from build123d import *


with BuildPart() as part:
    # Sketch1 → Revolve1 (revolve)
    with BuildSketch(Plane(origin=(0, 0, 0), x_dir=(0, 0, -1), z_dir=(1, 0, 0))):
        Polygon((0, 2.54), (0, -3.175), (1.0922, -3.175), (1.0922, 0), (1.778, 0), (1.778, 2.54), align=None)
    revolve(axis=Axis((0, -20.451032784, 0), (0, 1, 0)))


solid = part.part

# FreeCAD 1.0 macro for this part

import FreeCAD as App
import Part
import Sketcher

V = App.Vector
Q = App.Units.Quantity


def add_polygon(sketch, points):
    """Adds a closed chain of lines whose ends are joined by coincident constraints."""
    first, n = sketch.GeometryCount, len(points)
    for a, b in zip(points, points[1:] + points[:1]):
        sketch.addGeometry(Part.LineSegment(App.Vector(*a, 0), App.Vector(*b, 0)), False)
    for i in range(n):
        sketch.addConstraint(Sketcher.Constraint("Coincident", first + i, 2, first + (i + 1) % n, 1))

doc = App.newDocument("Part")
body = doc.addObject("PartDesign::Body", "Body")

sketch1 = body.newObject("Sketcher::SketchObject", "Sketch")
sketch1.AttachmentSupport = (doc.getObject("YZ_Plane"), [""])
sketch1.MapMode = "FlatFace"
add_polygon(sketch1, [(2.5, 0), (-3.2, 0), (-3.2, -1.1), (0, -1.1), (0, -1.8), (2.5, -1.8)])
sketch1.addConstraint([
    Sketcher.Constraint("Horizontal", 0),
    Sketcher.Constraint("Vertical", 1),
    Sketcher.Constraint("Horizontal", 2),
    Sketcher.Constraint("Vertical", 3),
    Sketcher.Constraint("Horizontal", 4),
    Sketcher.Constraint("Vertical", 5),
    Sketcher.Constraint("PointOnObject", 0, 2, -1),
    Sketcher.Constraint("PointOnObject", 2, 2, -2),
    Sketcher.Constraint("DistanceX", 4, 1, 4, 2, Q("0.1 in")),
    Sketcher.Constraint("DistanceY", 5, 1, 5, 2, Q("0.07 in")),
    Sketcher.Constraint("DistanceX", 0, 2, 0, 1, Q("0.225 in")),
    Sketcher.Constraint("DistanceY", 1, 2, 1, 1, Q("0.043 in")),
])
revolution = body.newObject("PartDesign::Revolution", "Revolution")
revolution.Profile = sketch1
revolution.ReferenceAxis = (sketch1, ["H_Axis"])
revolution.Angle = 360

doc.recompute()
